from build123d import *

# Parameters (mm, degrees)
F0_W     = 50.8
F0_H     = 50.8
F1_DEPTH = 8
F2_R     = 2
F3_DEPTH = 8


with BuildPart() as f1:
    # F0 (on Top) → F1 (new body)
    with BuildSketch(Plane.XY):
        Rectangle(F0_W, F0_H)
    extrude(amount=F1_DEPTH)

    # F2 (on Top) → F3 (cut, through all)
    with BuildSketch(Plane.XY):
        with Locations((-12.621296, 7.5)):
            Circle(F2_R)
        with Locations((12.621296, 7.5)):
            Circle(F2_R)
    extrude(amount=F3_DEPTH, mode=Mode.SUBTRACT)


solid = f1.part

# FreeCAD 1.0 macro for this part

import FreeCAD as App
import Part
import Sketcher

V = App.Vector


def add_polygon(sketch, points):
    """Adds a closed chain of lines whose ends are joined by coincident constraints."""
    first, n = sketch.GeometryCount, len(points)
    for a, b in zip(points, points[1:] + points[:1]):
        sketch.addGeometry(Part.LineSegment(App.Vector(*a, 0), App.Vector(*b, 0)), False)
    for i in range(n):
        sketch.addConstraint(Sketcher.Constraint("Coincident", first + i, 2, first + (i + 1) % n, 1))

doc = App.newDocument("Part")
body = doc.addObject("PartDesign::Body", "Body")

# Sketch on XY plane
sketch1 = doc.addObject("Sketcher::SketchObject", "Sketch")
body.addObject(sketch1)
sketch1.AttachmentSupport = (doc.XY_Plane, [""])
sketch1.MapMode = "FlatFace"
add_polygon(sketch1, [(-25, 25), (-25, -25), (25, -25), (25, 25)])  # lines 0-3
sketch1.addConstraint([
    Sketcher.Constraint("Vertical", 0),
    Sketcher.Constraint("Horizontal", 1),
    Sketcher.Constraint("Vertical", 2),
    Sketcher.Constraint("Horizontal", 3),
    Sketcher.Constraint("Symmetric", 0, 2, 2, 2, -1, 1),
    Sketcher.Constraint("Equal", 3, 0),
    Sketcher.Constraint("DistanceX", 1, 1, 1, 2, 50.8),
])
pad1 = doc.addObject("PartDesign::Pad", "Pad")
body.addObject(pad1)
pad1.Profile = sketch1
pad1.Length = 8

# Sketch on XY plane
sketch2 = doc.addObject("Sketcher::SketchObject", "Sketch001")
body.addObject(sketch2)
sketch2.AttachmentSupport = (doc.XY_Plane, [""])
sketch2.MapMode = "FlatFace"
sketch2.addGeometry([
    Part.Circle(V(-12.6, 7.5, 0), V(0, 0, 1), 2),
    Part.Circle(V(12.6, 7.5, 0), V(0, 0, 1), 2),
], False)
sketch2.addConstraint([
    Sketcher.Constraint("Equal", 0, 1),
    Sketcher.Constraint("Symmetric", 0, 3, 1, 3, -2),
    Sketcher.Constraint("Diameter", 0, 4.0),
    Sketcher.Constraint("DistanceY", -1, 1, 0, 3, 7.5),
    Sketcher.Constraint("DistanceX", 0, 3, 1, 3, 25.242592),
])
pocket1 = doc.addObject("PartDesign::Pocket", "Pocket")
body.addObject(pocket1)
pocket1.Profile = sketch2
pocket1.Type = "ThroughAll"
pocket1.Reversed = True

doc.recompute()
